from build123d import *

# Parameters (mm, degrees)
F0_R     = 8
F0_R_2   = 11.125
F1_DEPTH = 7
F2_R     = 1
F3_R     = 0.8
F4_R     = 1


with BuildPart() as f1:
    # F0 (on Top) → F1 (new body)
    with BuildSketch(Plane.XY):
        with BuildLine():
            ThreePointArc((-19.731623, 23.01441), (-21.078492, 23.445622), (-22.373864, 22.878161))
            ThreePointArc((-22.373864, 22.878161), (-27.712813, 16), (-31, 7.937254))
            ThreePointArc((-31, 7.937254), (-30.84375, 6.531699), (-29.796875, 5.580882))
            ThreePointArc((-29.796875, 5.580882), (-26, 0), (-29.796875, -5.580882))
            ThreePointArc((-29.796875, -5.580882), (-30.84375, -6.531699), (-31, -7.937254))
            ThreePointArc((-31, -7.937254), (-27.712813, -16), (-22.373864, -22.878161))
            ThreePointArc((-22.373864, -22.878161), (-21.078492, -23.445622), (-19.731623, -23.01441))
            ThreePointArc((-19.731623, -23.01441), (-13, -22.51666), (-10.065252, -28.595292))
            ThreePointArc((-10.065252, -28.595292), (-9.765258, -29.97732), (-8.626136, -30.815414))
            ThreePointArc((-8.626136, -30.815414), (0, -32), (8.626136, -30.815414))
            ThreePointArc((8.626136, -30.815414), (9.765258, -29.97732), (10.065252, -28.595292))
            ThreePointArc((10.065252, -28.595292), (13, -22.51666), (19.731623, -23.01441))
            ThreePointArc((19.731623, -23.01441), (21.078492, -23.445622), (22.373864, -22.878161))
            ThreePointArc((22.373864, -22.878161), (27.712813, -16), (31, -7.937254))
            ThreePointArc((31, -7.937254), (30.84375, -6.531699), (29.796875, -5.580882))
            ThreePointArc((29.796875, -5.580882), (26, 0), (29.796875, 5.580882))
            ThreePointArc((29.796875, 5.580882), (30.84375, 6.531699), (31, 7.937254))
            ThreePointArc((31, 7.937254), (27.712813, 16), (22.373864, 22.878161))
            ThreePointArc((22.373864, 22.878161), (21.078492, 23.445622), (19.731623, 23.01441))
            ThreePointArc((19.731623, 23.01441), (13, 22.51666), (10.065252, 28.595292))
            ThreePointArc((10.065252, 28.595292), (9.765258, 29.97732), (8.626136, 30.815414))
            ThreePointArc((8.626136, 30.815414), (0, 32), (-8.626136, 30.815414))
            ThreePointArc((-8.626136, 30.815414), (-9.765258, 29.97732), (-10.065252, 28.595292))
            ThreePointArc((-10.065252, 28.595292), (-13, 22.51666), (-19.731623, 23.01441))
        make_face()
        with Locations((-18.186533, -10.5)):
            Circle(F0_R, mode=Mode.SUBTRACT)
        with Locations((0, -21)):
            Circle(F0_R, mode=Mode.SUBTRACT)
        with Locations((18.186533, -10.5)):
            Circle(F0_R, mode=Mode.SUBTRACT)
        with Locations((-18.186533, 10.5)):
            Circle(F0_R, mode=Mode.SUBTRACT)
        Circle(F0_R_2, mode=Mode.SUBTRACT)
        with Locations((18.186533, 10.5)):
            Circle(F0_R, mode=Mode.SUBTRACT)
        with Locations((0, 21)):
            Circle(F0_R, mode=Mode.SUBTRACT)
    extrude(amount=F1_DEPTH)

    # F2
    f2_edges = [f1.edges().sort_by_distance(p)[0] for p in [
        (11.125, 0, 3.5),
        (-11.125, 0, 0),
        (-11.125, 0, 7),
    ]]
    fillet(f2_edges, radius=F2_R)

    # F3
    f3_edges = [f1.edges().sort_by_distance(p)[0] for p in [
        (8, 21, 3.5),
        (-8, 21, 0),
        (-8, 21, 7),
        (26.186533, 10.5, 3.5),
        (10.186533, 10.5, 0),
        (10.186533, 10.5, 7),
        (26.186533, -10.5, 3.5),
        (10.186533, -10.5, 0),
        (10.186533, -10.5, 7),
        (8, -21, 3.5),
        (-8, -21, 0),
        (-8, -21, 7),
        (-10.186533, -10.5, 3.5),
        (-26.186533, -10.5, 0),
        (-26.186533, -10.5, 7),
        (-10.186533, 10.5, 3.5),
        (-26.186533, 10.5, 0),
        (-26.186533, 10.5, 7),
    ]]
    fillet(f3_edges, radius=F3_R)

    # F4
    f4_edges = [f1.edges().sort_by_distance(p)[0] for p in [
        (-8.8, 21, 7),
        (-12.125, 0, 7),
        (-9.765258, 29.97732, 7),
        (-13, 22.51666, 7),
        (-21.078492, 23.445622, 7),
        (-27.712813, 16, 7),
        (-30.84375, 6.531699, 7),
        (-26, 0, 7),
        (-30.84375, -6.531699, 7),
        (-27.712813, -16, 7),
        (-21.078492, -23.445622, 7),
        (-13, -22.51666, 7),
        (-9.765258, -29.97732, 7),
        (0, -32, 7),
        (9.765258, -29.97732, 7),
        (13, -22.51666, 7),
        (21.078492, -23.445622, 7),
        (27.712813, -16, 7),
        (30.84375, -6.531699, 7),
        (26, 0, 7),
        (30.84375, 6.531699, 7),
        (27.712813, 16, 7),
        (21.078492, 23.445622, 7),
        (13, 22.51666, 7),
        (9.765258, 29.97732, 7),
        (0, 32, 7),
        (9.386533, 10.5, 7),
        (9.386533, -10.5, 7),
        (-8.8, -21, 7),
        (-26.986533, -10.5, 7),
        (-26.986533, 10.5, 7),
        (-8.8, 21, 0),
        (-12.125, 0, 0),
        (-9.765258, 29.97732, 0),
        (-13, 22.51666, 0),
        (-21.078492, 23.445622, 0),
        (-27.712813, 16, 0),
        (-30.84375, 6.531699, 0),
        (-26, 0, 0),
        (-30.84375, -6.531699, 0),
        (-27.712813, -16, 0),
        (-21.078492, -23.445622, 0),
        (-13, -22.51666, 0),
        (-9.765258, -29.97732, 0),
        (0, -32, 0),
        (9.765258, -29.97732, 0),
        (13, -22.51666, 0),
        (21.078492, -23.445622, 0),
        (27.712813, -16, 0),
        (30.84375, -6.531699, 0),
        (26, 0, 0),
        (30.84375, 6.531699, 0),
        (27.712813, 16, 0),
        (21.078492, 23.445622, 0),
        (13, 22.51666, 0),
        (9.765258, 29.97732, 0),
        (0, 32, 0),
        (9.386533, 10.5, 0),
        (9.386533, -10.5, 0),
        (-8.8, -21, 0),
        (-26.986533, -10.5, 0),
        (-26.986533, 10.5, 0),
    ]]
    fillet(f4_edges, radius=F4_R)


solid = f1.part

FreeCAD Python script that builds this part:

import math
import FreeCAD as App
import Part
import Sketcher


def edges_at(feature, points):
    """Names of the edges that pass closest to the given points."""
    edges = feature.Shape.Edges
    near = lambda p: min(range(len(edges)), key=lambda i: edges[i].distToShape(Part.Vertex(*p))[0])
    return sorted({f"Edge{near(p) + 1}" for p in points})

doc = App.newDocument("Part")
body = doc.addObject("PartDesign::Body", "Body")

sketch1 = doc.addObject("Sketcher::SketchObject", "Sketch")
body.addObject(sketch1)
sketch1.AttachmentSupport = (doc.XY_Plane, [""])
sketch1.MapMode = "FlatFace"
sketch1.addGeometry(Part.ArcOfCircle(Part.Circle(App.Vector(-21, 21.4, 0), App.Vector(0, 0, 1), 2), math.radians(52), math.radians(134)), False)
sketch1.addGeometry(Part.ArcOfCircle(Part.Circle(App.Vector(0, 0, 0), App.Vector(0, 0, 1), 32), math.radians(134), math.radians(166)), False)
sketch1.addGeometry(Part.ArcOfCircle(Part.Circle(App.Vector(-29.1, 7.4, 0), App.Vector(0, 0, 1), 2), math.radians(166), math.radians(248)), False)
sketch1.addGeometry(Part.ArcOfCircle(Part.Circle(App.Vector(-32, 0, 0), App.Vector(0, 0, 1), 6), math.radians(-68), math.radians(68)), False)
sketch1.addGeometry(Part.ArcOfCircle(Part.Circle(App.Vector(-29.1, -7.4, 0), App.Vector(0, 0, 1), 2), math.radians(112), math.radians(194)), False)
sketch1.addGeometry(Part.ArcOfCircle(Part.Circle(App.Vector(0, 0, 0), App.Vector(0, 0, 1), 32), math.radians(-166), math.radians(-134)), False)
sketch1.addGeometry(Part.ArcOfCircle(Part.Circle(App.Vector(-21, -21.4, 0), App.Vector(0, 0, 1), 2), math.radians(-134), math.radians(-52)), False)
sketch1.addGeometry(Part.ArcOfCircle(Part.Circle(App.Vector(-16, -27.7, 0), App.Vector(0, 0, 1), 6), math.radians(-8), math.radians(128)), False)
sketch1.addGeometry(Part.ArcOfCircle(Part.Circle(App.Vector(-8.1, -28.9, 0), App.Vector(0, 0, 1), 2), math.radians(172), math.radians(254)), False)
sketch1.addGeometry(Part.ArcOfCircle(Part.Circle(App.Vector(0, 0, 0), App.Vector(0, 0, 1), 32), math.radians(-106), math.radians(-74)), False)
sketch1.addGeometry(Part.ArcOfCircle(Part.Circle(App.Vector(8.1, -28.9, 0), App.Vector(0, 0, 1), 2), math.radians(-74), math.radians(8)), False)
sketch1.addGeometry(Part.ArcOfCircle(Part.Circle(App.Vector(16, -27.7, 0), App.Vector(0, 0, 1), 6), math.radians(52), math.radians(188)), False)
sketch1.addGeometry(Part.ArcOfCircle(Part.Circle(App.Vector(21, -21.4, 0), App.Vector(0, 0, 1), 2), math.radians(-128), math.radians(-46)), False)
sketch1.addGeometry(Part.ArcOfCircle(Part.Circle(App.Vector(0, 0, 0), App.Vector(0, 0, 1), 32), math.radians(-46), math.radians(-14)), False)
sketch1.addGeometry(Part.ArcOfCircle(Part.Circle(App.Vector(29.1, -7.4, 0), App.Vector(0, 0, 1), 2), math.radians(-14), math.radians(68)), False)
sketch1.addGeometry(Part.ArcOfCircle(Part.Circle(App.Vector(32, 0, 0), App.Vector(0, 0, 1), 6), math.radians(112), math.radians(248)), False)
sketch1.addGeometry(Part.ArcOfCircle(Part.Circle(App.Vector(29.1, 7.4, 0), App.Vector(0, 0, 1), 2), math.radians(-68), math.radians(14)), False)
sketch1.addGeometry(Part.ArcOfCircle(Part.Circle(App.Vector(0, 0, 0), App.Vector(0, 0, 1), 32), math.radians(14), math.radians(46)), False)
sketch1.addGeometry(Part.ArcOfCircle(Part.Circle(App.Vector(21, 21.4, 0), App.Vector(0, 0, 1), 2), math.radians(46), math.radians(128)), False)
sketch1.addGeometry(Part.ArcOfCircle(Part.Circle(App.Vector(16, 27.7, 0), App.Vector(0, 0, 1), 6), math.radians(172), math.radians(308)), False)
sketch1.addGeometry(Part.ArcOfCircle(Part.Circle(App.Vector(8.1, 28.9, 0), App.Vector(0, 0, 1), 2), math.radians(-8), math.radians(74)), False)
sketch1.addGeometry(Part.ArcOfCircle(Part.Circle(App.Vector(0, 0, 0), App.Vector(0, 0, 1), 32), math.radians(74), math.radians(106)), False)
sketch1.addGeometry(Part.ArcOfCircle(Part.Circle(App.Vector(-8.1, 28.9, 0), App.Vector(0, 0, 1), 2), math.radians(106), math.radians(188)), False)
sketch1.addGeometry(Part.ArcOfCircle(Part.Circle(App.Vector(-16, 27.7, 0), App.Vector(0, 0, 1), 6), math.radians(-128), math.radians(8)), False)
sketch1.addGeometry(Part.Circle(App.Vector(0, -21, 0), App.Vector(0, 0, 1), 8), False)
sketch1.addGeometry(Part.Circle(App.Vector(-18.2, -10.5, 0), App.Vector(0, 0, 1), 8), False)
sketch1.addGeometry(Part.Circle(App.Vector(18.2, -10.5, 0), App.Vector(0, 0, 1), 8), False)
sketch1.addGeometry(Part.Circle(App.Vector(-18.2, 10.5, 0), App.Vector(0, 0, 1), 8), False)
sketch1.addGeometry(Part.Circle(App.Vector(0, 0, 0), App.Vector(0, 0, 1), 11.1), False)
sketch1.addGeometry(Part.Circle(App.Vector(0, 21, 0), App.Vector(0, 0, 1), 8), False)
sketch1.addGeometry(Part.Circle(App.Vector(18.2, 10.5, 0), App.Vector(0, 0, 1), 8), False)
sketch1.addConstraint(Sketcher.Constraint("Tangent", 0, 2, 1, 1))
sketch1.addConstraint(Sketcher.Constraint("Tangent", 1, 2, 2, 1))
sketch1.addConstraint(Sketcher.Constraint("Tangent", 2, 2, 3, 2))
sketch1.addConstraint(Sketcher.Constraint("Tangent", 3, 1, 4, 1))
sketch1.addConstraint(Sketcher.Constraint("Tangent", 4, 2, 5, 1))
sketch1.addConstraint(Sketcher.Constraint("Tangent", 5, 2, 6, 1))
sketch1.addConstraint(Sketcher.Constraint("Tangent", 6, 2, 7, 2))
sketch1.addConstraint(Sketcher.Constraint("Tangent", 7, 1, 8, 1))
sketch1.addConstraint(Sketcher.Constraint("Tangent", 8, 2, 9, 1))
sketch1.addConstraint(Sketcher.Constraint("Tangent", 9, 2, 10, 1))
sketch1.addConstraint(Sketcher.Constraint("Tangent", 10, 2, 11, 2))
sketch1.addConstraint(Sketcher.Constraint("Tangent", 11, 1, 12, 1))
sketch1.addConstraint(Sketcher.Constraint("Tangent", 12, 2, 13, 1))
sketch1.addConstraint(Sketcher.Constraint("Tangent", 13, 2, 14, 1))
sketch1.addConstraint(Sketcher.Constraint("Tangent", 14, 2, 15, 2))
sketch1.addConstraint(Sketcher.Constraint("Tangent", 15, 1, 16, 1))
sketch1.addConstraint(Sketcher.Constraint("Tangent", 16, 2, 17, 1))
sketch1.addConstraint(Sketcher.Constraint("Tangent", 17, 2, 18, 1))
sketch1.addConstraint(Sketcher.Constraint("Tangent", 18, 2, 19, 2))
sketch1.addConstraint(Sketcher.Constraint("Tangent", 19, 1, 20, 1))
sketch1.addConstraint(Sketcher.Constraint("Tangent", 20, 2, 21, 1))
sketch1.addConstraint(Sketcher.Constraint("Tangent", 21, 2, 22, 1))
sketch1.addConstraint(Sketcher.Constraint("Tangent", 22, 2, 23, 2))
sketch1.addConstraint(Sketcher.Constraint("Tangent", 23, 1, 0, 1))
sketch1.addConstraint(Sketcher.Constraint("Coincident", 1, 3, -1, 1))
sketch1.addConstraint(Sketcher.Constraint("Coincident", 5, 3, -1, 1))
sketch1.addConstraint(Sketcher.Constraint("Coincident", 13, 3, -1, 1))
sketch1.addConstraint(Sketcher.Constraint("Coincident", 17, 3, -1, 1))
sketch1.addConstraint(Sketcher.Constraint("Coincident", 28, 3, -1, 1))
sketch1.addConstraint(Sketcher.Constraint("Equal", 0, 2))
sketch1.addConstraint(Sketcher.Constraint("Equal", 2, 4))
sketch1.addConstraint(Sketcher.Constraint("Equal", 1, 5))
sketch1.addConstraint(Sketcher.Constraint("Equal", 4, 6))
sketch1.addConstraint(Sketcher.Constraint("Equal", 3, 7))
sketch1.addConstraint(Sketcher.Constraint("Equal", 6, 8))
sketch1.addConstraint(Sketcher.Constraint("Equal", 8, 10))
sketch1.addConstraint(Sketcher.Constraint("Equal", 7, 11))
sketch1.addConstraint(Sketcher.Constraint("Equal", 10, 12))
sketch1.addConstraint(Sketcher.Constraint("Equal", 5, 13))
sketch1.addConstraint(Sketcher.Constraint("Equal", 12, 14))
sketch1.addConstraint(Sketcher.Constraint("Equal", 11, 15))
sketch1.addConstraint(Sketcher.Constraint("Equal", 14, 16))
sketch1.addConstraint(Sketcher.Constraint("Equal", 13, 17))
sketch1.addConstraint(Sketcher.Constraint("Equal", 16, 18))
sketch1.addConstraint(Sketcher.Constraint("Equal", 15, 19))
sketch1.addConstraint(Sketcher.Constraint("Equal", 18, 20))
sketch1.addConstraint(Sketcher.Constraint("Equal", 9, 21))
sketch1.addConstraint(Sketcher.Constraint("Equal", 20, 22))
sketch1.addConstraint(Sketcher.Constraint("Equal", 19, 23))
sketch1.addConstraint(Sketcher.Constraint("Equal", 24, 25))
sketch1.addConstraint(Sketcher.Constraint("Equal", 25, 26))
sketch1.addConstraint(Sketcher.Constraint("Equal", 26, 27))
sketch1.addConstraint(Sketcher.Constraint("Equal", 27, 29))
sketch1.addConstraint(Sketcher.Constraint("Equal", 29, 30))
sketch1.addConstraint(Sketcher.Constraint("Symmetric", 3, 3, 15, 3, -1, 1))
sketch1.addConstraint(Sketcher.Constraint("Symmetric", 7, 3, 19, 3, -1, 1))
sketch1.addConstraint(Sketcher.Constraint("Symmetric", 9, 3, 21, 3, -1, 1))
sketch1.addConstraint(Sketcher.Constraint("Symmetric", 11, 3, 23, 3, -1, 1))
sketch1.addConstraint(Sketcher.Constraint("Symmetric", 26, 3, 27, 3, -1, 1))
sketch1.addConstraint(Sketcher.Constraint("Symmetric", 24, 3, 29, 3, -1, 1))
sketch1.addConstraint(Sketcher.Constraint("Symmetric", 25, 3, 30, 3, -1, 1))
sketch1.addConstraint(Sketcher.Constraint("Symmetric", 8, 3, 10, 3, -2))
sketch1.addConstraint(Sketcher.Constraint("Symmetric", 25, 3, 26, 3, -2))
sketch1.addConstraint(Sketcher.Constraint("PointOnObject", 3, 3, -1))
sketch1.addConstraint(Sketcher.Constraint("PointOnObject", 24, 3, -2))
sketch1.addConstraint(Sketcher.Constraint("Horizontal", 7, 3, 11, 3))
sketch1.addConstraint(Sketcher.Constraint("Diameter", 24, 16.0))
sketch1.addConstraint(Sketcher.Constraint("Radius", 0, 2.000001))
sketch1.addConstraint(Sketcher.Constraint("Radius", 3, 6.0))
sketch1.addConstraint(Sketcher.Constraint("Diameter", 28, 22.25))
sketch1.addConstraint(Sketcher.Constraint("DistanceX", 3, 3, -1, 1, 32.0))
sketch1.addConstraint(Sketcher.Constraint("DistanceX", 7, 3, -1, 1, 16.0))
sketch1.addConstraint(Sketcher.Constraint("DistanceY", 24, 3, -1, 1, 21.0))
sketch1.addConstraint(Sketcher.Constraint("DistanceX", 1, 2, -1, 1, 31.0))
sketch1.addConstraint(Sketcher.Constraint("DistanceY", 25, 3, -1, 1, 10.5))
sketch1.addConstraint(Sketcher.Constraint("Radius", 9, 31.999984))
sketch1.addConstraint(Sketcher.Constraint("DistanceY", 2, 3, 0, 3, 14.007099))
sketch1.addConstraint(Sketcher.Constraint("DistanceY", 8, 2, 7, 3, 3.102601))
sketch1.addConstraint(Sketcher.Constraint("DistanceX", 25, 3, 8, 3, 10.099529))
pad1 = doc.addObject("PartDesign::Pad", "Pad")
body.addObject(pad1)
pad1.Profile = sketch1
pad1.Length = 7
doc.recompute()

fillet = doc.addObject("PartDesign::Fillet", "Fillet")
body.addObject(fillet)
fillet.Base = (pad1, edges_at(pad1, [(11.125, 0, 3.5), (-11.125, 0, 0), (-11.125, 0, 7)]))
fillet.Radius = 1
doc.recompute()

fillet2 = doc.addObject("PartDesign::Fillet", "Fillet001")
body.addObject(fillet2)
fillet2.Base = (fillet, edges_at(fillet, [
    (8, 21, 3.5),
    (-8, 21, 0),
    (-8, 21, 7),
    (26.187, 10.5, 3.5),
    (10.187, 10.5, 0),
    (10.187, 10.5, 7),
    (26.187, -10.5, 3.5),
    (10.187, -10.5, 0),
    (10.187, -10.5, 7),
    (8, -21, 3.5),
    (-8, -21, 0),
    (-8, -21, 7),
    (-10.187, -10.5, 3.5),
    (-26.187, -10.5, 0),
    (-26.187, -10.5, 7),
    (-10.187, 10.5, 3.5),
    (-26.187, 10.5, 0),
    (-26.187, 10.5, 7),
]))
fillet2.Radius = 0.8
doc.recompute()

fillet3 = doc.addObject("PartDesign::Fillet", "Fillet002")
body.addObject(fillet3)
fillet3.Base = (fillet2, edges_at(fillet2, [
    (-8.8, 21, 7),
    (-12.125, 0, 7),
    (-9.765, 29.977, 7),
    (-13, 22.517, 7),
    (-21.078, 23.446, 7),
    (-27.713, 16, 7),
    (-30.844, 6.532, 7),
    (-26, 0, 7),
    (-30.844, -6.532, 7),
    (-27.713, -16, 7),
    (-21.078, -23.446, 7),
    (-13, -22.517, 7),
    (-9.765, -29.977, 7),
    (0, -32, 7),
    (9.765, -29.977, 7),
    (13, -22.517, 7),
    (21.078, -23.446, 7),
    (27.713, -16, 7),
    (30.844, -6.532, 7),
    (26, 0, 7),
    (30.844, 6.532, 7),
    (27.713, 16, 7),
    (21.078, 23.446, 7),
    (13, 22.517, 7),
    (9.765, 29.977, 7),
    (0, 32, 7),
    (9.387, 10.5, 7),
    (9.387, -10.5, 7),
    (-8.8, -21, 7),
    (-26.987, -10.5, 7),
    (-26.987, 10.5, 7),
    (-8.8, 21, 0),
    (-12.125, 0, 0),
    (-9.765, 29.977, 0),
    (-13, 22.517, 0),
    (-21.078, 23.446, 0),
    (-27.713, 16, 0),
    (-30.844, 6.532, 0),
    (-26, 0, 0),
    (-30.844, -6.532, 0),
    (-27.713, -16, 0),
    (-21.078, -23.446, 0),
    (-13, -22.517, 0),
    (-9.765, -29.977, 0),
    (0, -32, 0),
    (9.765, -29.977, 0),
    (13, -22.517, 0),
    (21.078, -23.446, 0),
    (27.713, -16, 0),
    (30.844, -6.532, 0),
    (26, 0, 0),
    (30.844, 6.532, 0),
    (27.713, 16, 0),
    (21.078, 23.446, 0),
    (13, 22.517, 0),
    (9.765, 29.977, 0),
    (0, 32, 0),
    (9.387, 10.5, 0),
    (9.387, -10.5, 0),
    (-8.8, -21, 0),
    (-26.987, -10.5, 0),
    (-26.987, 10.5, 0),
]))
fillet3.Radius = 1

doc.recompute()
